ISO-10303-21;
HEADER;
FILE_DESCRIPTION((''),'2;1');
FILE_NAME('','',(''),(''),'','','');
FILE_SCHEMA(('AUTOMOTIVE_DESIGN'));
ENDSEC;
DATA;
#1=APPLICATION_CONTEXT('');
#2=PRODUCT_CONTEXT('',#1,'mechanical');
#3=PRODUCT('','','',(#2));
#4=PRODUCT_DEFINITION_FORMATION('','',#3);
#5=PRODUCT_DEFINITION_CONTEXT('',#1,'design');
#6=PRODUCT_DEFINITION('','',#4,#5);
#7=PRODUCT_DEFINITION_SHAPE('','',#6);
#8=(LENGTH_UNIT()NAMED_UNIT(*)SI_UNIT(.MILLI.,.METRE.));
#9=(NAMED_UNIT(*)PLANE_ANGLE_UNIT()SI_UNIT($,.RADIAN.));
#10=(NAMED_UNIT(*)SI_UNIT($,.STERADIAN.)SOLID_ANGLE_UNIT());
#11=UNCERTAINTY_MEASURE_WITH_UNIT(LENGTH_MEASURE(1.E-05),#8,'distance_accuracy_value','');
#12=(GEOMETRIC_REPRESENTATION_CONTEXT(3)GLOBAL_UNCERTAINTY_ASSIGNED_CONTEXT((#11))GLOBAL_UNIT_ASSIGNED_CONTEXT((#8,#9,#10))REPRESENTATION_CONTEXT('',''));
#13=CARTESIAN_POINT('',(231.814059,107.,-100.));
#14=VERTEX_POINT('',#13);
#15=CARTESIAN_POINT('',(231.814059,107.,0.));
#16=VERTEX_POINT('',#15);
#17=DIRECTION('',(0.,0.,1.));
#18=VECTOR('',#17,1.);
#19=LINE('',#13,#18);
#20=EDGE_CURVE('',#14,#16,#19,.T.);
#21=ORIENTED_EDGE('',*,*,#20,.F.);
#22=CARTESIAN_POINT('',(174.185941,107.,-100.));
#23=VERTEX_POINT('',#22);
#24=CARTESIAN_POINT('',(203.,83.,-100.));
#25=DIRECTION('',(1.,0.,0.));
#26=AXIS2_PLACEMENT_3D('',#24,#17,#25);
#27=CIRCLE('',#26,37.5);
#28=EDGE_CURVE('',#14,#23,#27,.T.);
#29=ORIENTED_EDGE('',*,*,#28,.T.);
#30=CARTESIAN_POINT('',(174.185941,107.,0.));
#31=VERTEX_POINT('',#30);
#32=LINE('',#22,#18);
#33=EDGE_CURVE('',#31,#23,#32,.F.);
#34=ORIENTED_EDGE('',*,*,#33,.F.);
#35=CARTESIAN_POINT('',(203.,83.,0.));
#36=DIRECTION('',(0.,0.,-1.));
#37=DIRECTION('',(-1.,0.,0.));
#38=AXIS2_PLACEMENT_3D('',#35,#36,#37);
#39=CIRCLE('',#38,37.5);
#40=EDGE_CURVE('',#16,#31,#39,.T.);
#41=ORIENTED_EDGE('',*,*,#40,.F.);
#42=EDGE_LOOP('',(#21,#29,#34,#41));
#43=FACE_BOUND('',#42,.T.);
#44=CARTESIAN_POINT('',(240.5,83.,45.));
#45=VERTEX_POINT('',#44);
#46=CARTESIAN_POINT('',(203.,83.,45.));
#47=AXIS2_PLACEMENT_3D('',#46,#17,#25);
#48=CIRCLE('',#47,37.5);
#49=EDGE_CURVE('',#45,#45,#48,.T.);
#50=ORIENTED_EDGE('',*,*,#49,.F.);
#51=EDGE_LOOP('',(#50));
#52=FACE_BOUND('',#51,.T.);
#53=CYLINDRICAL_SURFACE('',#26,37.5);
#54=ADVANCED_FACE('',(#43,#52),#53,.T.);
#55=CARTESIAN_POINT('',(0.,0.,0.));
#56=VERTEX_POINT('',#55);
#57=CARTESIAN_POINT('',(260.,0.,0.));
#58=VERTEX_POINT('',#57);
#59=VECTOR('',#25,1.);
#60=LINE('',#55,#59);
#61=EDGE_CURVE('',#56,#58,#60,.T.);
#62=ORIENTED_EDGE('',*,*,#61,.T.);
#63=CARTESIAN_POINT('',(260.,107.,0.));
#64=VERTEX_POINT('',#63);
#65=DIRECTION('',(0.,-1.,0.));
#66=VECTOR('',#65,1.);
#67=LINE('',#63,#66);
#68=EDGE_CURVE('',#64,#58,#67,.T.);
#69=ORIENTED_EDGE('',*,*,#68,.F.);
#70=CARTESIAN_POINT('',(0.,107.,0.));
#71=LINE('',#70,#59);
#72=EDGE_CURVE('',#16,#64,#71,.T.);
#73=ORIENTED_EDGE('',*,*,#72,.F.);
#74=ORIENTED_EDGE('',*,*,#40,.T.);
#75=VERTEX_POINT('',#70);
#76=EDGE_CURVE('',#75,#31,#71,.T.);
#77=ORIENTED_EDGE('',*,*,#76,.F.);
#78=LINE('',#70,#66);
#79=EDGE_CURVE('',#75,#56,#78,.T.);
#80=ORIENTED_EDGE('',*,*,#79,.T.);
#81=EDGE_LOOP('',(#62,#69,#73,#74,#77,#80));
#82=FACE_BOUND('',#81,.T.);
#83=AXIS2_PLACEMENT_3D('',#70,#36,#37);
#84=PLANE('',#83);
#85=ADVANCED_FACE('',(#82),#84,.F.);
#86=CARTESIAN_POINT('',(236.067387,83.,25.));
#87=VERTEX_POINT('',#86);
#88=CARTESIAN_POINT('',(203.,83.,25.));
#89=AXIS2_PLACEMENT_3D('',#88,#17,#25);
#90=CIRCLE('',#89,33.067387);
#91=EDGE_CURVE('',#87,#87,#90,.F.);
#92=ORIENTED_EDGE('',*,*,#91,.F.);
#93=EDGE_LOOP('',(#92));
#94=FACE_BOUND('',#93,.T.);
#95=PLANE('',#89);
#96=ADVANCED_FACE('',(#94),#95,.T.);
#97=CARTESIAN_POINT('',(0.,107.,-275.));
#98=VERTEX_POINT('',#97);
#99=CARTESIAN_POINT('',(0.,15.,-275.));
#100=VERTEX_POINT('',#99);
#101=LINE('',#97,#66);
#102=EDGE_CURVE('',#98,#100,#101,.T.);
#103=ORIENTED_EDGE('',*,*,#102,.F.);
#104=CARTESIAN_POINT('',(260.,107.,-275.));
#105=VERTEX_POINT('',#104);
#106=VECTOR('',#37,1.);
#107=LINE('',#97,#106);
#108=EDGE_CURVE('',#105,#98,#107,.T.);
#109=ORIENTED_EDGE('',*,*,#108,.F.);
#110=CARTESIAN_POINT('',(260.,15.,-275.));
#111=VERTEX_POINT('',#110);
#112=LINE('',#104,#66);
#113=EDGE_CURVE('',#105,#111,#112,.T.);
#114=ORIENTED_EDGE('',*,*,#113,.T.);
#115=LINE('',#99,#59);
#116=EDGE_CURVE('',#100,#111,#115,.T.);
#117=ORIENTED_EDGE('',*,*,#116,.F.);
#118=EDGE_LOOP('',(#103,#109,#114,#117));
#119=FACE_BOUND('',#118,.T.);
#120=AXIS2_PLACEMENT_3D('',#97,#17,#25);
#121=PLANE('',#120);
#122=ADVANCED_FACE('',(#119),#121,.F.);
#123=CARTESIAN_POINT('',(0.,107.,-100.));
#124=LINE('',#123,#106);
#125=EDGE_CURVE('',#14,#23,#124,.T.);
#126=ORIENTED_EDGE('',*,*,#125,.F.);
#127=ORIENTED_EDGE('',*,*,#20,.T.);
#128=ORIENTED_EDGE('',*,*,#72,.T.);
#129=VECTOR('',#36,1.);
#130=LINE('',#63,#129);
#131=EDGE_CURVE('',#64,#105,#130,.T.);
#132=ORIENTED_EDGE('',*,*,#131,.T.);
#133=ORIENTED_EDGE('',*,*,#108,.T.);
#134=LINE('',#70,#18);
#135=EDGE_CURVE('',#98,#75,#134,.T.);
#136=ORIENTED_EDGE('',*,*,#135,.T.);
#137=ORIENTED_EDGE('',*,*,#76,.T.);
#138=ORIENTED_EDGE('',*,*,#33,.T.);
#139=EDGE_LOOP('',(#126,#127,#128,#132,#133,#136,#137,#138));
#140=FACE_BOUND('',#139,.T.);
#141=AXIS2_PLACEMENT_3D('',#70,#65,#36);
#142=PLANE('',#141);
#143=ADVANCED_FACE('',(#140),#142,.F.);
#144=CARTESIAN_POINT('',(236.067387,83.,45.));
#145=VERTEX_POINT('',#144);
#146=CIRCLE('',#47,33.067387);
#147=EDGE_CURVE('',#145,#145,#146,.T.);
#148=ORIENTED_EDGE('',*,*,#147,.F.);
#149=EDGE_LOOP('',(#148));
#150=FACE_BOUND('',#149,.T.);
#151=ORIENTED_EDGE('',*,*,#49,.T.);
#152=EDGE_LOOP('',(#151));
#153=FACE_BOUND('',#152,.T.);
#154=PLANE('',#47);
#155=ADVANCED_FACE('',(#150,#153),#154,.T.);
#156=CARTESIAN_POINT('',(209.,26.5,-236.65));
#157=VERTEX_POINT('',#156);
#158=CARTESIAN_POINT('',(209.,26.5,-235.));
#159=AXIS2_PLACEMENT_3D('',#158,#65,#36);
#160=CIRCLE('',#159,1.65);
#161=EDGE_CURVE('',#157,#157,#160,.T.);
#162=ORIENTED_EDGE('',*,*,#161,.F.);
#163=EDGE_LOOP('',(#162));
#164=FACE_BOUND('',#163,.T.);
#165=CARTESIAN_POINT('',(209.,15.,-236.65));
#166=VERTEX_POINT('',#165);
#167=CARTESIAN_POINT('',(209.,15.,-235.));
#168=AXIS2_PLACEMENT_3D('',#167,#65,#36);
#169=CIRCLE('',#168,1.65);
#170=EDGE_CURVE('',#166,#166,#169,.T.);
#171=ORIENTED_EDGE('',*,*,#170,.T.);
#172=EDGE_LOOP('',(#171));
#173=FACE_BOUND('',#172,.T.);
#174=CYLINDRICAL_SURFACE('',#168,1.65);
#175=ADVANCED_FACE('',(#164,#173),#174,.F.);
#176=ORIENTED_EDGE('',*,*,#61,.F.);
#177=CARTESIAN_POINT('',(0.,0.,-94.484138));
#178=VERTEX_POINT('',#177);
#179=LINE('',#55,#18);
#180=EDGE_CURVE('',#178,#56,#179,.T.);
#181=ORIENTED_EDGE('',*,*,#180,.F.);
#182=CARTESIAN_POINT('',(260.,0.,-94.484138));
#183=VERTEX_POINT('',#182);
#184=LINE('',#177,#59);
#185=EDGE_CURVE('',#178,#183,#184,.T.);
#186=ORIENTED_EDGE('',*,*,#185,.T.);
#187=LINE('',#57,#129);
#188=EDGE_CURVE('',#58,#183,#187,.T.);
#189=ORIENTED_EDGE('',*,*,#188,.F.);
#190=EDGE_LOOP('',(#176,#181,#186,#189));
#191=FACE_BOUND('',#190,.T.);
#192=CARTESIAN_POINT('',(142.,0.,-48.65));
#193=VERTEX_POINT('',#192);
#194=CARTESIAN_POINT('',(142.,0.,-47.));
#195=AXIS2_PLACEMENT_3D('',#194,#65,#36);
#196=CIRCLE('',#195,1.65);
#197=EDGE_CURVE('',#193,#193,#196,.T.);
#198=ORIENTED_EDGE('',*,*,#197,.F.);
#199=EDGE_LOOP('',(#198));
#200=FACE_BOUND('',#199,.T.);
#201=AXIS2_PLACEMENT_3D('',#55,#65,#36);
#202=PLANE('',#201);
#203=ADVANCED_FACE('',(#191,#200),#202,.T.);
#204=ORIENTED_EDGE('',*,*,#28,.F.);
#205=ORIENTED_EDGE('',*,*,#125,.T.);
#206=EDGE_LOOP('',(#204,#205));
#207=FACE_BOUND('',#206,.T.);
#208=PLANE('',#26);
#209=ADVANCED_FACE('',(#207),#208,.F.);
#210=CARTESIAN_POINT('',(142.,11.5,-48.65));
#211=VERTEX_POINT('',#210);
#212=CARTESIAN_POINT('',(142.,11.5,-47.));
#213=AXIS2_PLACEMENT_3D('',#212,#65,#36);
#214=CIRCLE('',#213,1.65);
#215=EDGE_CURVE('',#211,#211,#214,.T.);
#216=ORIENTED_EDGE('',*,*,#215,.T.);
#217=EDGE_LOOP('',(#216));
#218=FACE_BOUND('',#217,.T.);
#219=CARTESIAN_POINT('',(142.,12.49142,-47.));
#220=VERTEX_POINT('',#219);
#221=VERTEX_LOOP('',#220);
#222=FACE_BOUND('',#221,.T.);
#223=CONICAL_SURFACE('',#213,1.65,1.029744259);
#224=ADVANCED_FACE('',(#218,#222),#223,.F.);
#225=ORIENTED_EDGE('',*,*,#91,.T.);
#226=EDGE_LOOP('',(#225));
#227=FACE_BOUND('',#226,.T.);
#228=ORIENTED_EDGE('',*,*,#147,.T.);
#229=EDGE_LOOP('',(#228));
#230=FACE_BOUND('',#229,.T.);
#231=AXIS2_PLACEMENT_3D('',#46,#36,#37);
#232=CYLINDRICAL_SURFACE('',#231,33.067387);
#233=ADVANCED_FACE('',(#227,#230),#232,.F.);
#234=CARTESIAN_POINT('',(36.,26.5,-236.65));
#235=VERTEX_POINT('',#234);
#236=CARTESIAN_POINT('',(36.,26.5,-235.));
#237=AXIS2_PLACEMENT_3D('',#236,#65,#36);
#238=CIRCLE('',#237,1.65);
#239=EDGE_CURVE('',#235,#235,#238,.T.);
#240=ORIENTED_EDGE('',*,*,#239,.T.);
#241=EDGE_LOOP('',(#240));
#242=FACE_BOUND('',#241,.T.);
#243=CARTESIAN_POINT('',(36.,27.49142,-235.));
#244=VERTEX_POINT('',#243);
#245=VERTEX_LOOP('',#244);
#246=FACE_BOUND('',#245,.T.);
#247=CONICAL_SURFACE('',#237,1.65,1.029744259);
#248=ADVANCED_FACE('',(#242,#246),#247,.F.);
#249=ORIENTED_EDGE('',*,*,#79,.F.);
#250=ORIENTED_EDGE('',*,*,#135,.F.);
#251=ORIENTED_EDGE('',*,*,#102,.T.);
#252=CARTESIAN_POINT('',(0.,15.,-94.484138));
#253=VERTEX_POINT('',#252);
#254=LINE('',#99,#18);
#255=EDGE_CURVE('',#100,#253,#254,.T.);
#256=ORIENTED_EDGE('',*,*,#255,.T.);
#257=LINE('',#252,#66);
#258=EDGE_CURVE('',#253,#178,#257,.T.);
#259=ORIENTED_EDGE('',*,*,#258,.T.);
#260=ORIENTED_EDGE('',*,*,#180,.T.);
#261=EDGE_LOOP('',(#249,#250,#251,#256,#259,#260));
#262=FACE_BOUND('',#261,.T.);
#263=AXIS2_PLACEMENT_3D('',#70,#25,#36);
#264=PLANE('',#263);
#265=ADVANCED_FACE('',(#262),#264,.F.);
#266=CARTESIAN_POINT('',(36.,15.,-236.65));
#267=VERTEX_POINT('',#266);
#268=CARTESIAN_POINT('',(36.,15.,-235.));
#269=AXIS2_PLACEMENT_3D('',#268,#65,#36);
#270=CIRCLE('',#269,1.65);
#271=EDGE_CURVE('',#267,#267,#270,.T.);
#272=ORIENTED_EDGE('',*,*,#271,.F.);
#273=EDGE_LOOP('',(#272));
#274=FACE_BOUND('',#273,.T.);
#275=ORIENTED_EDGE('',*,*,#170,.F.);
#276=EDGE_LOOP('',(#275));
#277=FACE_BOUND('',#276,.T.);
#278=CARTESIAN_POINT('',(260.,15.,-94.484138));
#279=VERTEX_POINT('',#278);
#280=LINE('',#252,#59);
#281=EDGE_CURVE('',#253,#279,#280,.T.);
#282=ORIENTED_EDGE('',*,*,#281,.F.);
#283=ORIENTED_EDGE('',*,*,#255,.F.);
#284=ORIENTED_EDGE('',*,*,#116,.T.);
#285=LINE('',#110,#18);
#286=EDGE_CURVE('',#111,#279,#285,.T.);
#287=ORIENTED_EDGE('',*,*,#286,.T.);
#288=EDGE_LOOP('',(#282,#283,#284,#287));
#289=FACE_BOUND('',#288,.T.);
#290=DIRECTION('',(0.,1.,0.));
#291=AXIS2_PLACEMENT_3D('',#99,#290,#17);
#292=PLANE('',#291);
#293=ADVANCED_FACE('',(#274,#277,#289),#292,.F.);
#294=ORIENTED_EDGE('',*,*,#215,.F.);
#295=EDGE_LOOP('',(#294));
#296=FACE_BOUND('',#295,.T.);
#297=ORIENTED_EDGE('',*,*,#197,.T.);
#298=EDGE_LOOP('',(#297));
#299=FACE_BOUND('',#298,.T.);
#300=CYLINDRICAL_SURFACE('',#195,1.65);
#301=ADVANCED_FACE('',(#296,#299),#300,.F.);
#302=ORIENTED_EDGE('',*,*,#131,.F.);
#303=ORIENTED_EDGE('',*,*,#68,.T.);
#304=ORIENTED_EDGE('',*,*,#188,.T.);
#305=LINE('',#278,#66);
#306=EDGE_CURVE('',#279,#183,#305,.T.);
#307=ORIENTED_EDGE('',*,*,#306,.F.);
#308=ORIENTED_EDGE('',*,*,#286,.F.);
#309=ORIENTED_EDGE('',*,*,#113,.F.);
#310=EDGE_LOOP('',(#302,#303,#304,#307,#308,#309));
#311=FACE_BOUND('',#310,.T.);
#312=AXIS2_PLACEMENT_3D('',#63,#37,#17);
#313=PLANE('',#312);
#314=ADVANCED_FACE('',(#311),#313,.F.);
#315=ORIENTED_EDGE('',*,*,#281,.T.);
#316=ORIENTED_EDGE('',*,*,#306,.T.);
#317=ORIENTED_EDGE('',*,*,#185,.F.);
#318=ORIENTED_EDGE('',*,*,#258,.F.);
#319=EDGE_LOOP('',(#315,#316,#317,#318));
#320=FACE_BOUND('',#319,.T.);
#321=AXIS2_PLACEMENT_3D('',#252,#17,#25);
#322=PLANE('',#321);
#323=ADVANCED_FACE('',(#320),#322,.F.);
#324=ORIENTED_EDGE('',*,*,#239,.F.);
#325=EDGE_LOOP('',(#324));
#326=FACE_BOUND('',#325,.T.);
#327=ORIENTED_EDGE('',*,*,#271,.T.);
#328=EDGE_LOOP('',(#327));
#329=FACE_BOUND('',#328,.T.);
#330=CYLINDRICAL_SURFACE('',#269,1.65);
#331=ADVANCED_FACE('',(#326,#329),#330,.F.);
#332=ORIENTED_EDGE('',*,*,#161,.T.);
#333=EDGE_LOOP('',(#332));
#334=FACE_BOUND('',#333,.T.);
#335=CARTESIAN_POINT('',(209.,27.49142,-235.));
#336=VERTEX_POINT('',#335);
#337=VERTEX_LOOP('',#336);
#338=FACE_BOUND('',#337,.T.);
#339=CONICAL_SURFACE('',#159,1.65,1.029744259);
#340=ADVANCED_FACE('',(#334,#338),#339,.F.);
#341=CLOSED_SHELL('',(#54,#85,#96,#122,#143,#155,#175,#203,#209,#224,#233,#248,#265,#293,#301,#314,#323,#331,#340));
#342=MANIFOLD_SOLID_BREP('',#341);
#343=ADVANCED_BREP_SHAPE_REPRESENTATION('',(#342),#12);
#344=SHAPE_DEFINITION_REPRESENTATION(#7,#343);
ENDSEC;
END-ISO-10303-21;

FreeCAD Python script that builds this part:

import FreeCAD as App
import Part
import Sketcher
Q = App.Units.Quantity


def add_polygon(sketch, points):
    """Adds a closed chain of lines whose ends are joined by coincident constraints."""
    first, n = sketch.GeometryCount, len(points)
    for a, b in zip(points, points[1:] + points[:1]):
        sketch.addGeometry(Part.LineSegment(App.Vector(*a, 0), App.Vector(*b, 0)), False)
    for i in range(n):
        sketch.addConstraint(Sketcher.Constraint("Coincident", first + i, 2, first + (i + 1) % n, 1))

doc = App.newDocument("Part")
body = doc.addObject("PartDesign::Body", "Body")

# Sketch on XZ plane
sketch1 = body.newObject("Sketcher::SketchObject", "Sketch")
sketch1.AttachmentSupport = (doc.getObject("XZ_Plane"), [""])
sketch1.MapMode = "FlatFace"
add_polygon(sketch1, [(0, -275), (0, 0), (260, 0), (260, -275)])  # lines 0-3
sketch1.addConstraint([
    Sketcher.Constraint("Vertical", 0),
    Sketcher.Constraint("Horizontal", 1),
    Sketcher.Constraint("Vertical", 2),
    Sketcher.Constraint("Horizontal", 3),
    Sketcher.Constraint("Coincident", 0, 2, -1, 1),
    Sketcher.Constraint("DistanceX", 1, 1, 1, 2, Q("260 mm")),
    Sketcher.Constraint("DistanceY", 0, 1, 0, 2, Q("275 mm")),
])
pad1 = body.newObject("PartDesign::Pad", "Pad")
pad1.Profile = sketch1
pad1.Length = 107
pad1.Reversed = True

# Sketch on XY plane
sketch2 = body.newObject("Sketcher::SketchObject", "Sketch001")
sketch2.AttachmentSupport = (doc.getObject("XY_Plane"), [""])
sketch2.MapMode = "FlatFace"
sketch2.addGeometry(Part.Circle(App.Vector(203, 83, 0), App.Vector(0, 0, 1), 38), False)
sketch2.addConstraint([
    Sketcher.Constraint("Diameter", 0, Q("75 mm")),
    Sketcher.Constraint("DistanceX", -1, 1, 0, 3, Q("203 mm")),
    Sketcher.Constraint("DistanceY", -1, 1, 0, 3, Q("83 mm")),
])
pad2 = body.newObject("PartDesign::Pad", "Pad001")
pad2.Profile = sketch2
pad2.Type = "TwoLengths"
pad2.Length = 25
pad2.Length2 = 100

# Sketch on YZ plane
sketch3 = body.newObject("Sketcher::SketchObject", "Sketch002")
sketch3.AttachmentSupport = (doc.getObject("YZ_Plane"), [""])
sketch3.MapMode = "FlatFace"
sketch3.AttachmentOffset = App.Placement(App.Vector(0, 0, 260), App.Rotation())
add_polygon(sketch3, [(15, -94), (0, -94), (0, -275), (15, -275)])  # lines 0-3
sketch3.addConstraint([
    Sketcher.Constraint("Horizontal", 0),
    Sketcher.Constraint("Vertical", 1),
    Sketcher.Constraint("Horizontal", 2),
    Sketcher.Constraint("Vertical", 3),
    Sketcher.Constraint("PointOnObject", 0, 2, -2),
    Sketcher.Constraint("DistanceX", 0, 2, 0, 1, Q("15 mm")),
    Sketcher.Constraint("DistanceY", 1, 2, -1, 1, Q("275 mm")),
    Sketcher.Constraint("DistanceY", 1, 2, 1, 1, Q("180.515862 mm")),
])
pocket1 = body.newObject("PartDesign::Pocket", "Pocket")
pocket1.Profile = sketch3
pocket1.Type = "ThroughAll"

# Sketch on XZ plane
sketch4 = body.newObject("Sketcher::SketchObject", "Sketch003")
sketch4.AttachmentSupport = (doc.getObject("XZ_Plane"), [""])
sketch4.MapMode = "FlatFace"
sketch4.AttachmentOffset = App.Placement(App.Vector(0, 0, -15), App.Rotation())
sketch4.addGeometry([
    Part.Circle(App.Vector(36, -235, 0), App.Vector(0, 0, 1), 1.6),
    Part.Circle(App.Vector(209, -235, 0), App.Vector(0, 0, 1), 1.6),
], False)
sketch4.addConstraint([
    Sketcher.Constraint("Equal", 0, 1),
    Sketcher.Constraint("Horizontal", 0, 3, 1, 3),
    Sketcher.Constraint("Diameter", 0, Q("3.3 mm")),
    Sketcher.Constraint("DistanceX", -1, 1, 0, 3, Q("36 mm")),
    Sketcher.Constraint("DistanceY", 0, 3, -1, 1, Q("235 mm")),
    Sketcher.Constraint("DistanceX", -1, 1, 1, 3, Q("209 mm")),
])
doc.recompute()
hole = body.newObject("PartDesign::Hole", "Hole")
hole.Profile = sketch4
hole.ThreadType = "None"
hole.Diameter = 3.3
hole.DepthType = "Dimension"
hole.Depth = 11.5
hole.DrillPoint = "Angled"
hole.DrillPointAngle = 118

# Sketch on XZ plane
sketch5 = body.newObject("Sketcher::SketchObject", "Sketch004")
sketch5.AttachmentSupport = (doc.getObject("XZ_Plane"), [""])
sketch5.MapMode = "FlatFace"
sketch5.addGeometry(Part.Circle(App.Vector(142, -47, 0), App.Vector(0, 0, 1), 1.6), False)
sketch5.addConstraint([
    Sketcher.Constraint("Diameter", 0, Q("3.3 mm")),
    Sketcher.Constraint("DistanceX", -1, 1, 0, 3, Q("142 mm")),
    Sketcher.Constraint("DistanceY", 0, 3, -1, 1, Q("47 mm")),
])
doc.recompute()
hole2 = body.newObject("PartDesign::Hole", "Hole001")
hole2.Profile = sketch5
hole2.ThreadType = "None"
hole2.Diameter = 3.3
hole2.DepthType = "Dimension"
hole2.Depth = 11.5
hole2.DrillPoint = "Angled"
hole2.DrillPointAngle = 118

# Sketch on XY plane
sketch6 = body.newObject("Sketcher::SketchObject", "Sketch005")
sketch6.AttachmentSupport = (doc.getObject("XY_Plane"), [""])
sketch6.MapMode = "FlatFace"
sketch6.AttachmentOffset = App.Placement(App.Vector(0, 0, 25), App.Rotation())
sketch6.addGeometry([
    Part.Circle(App.Vector(203, 83, 0), App.Vector(0, 0, 1), 38),
    Part.Circle(App.Vector(203, 83, 0), App.Vector(0, 0, 1), 33),
], False)
sketch6.addConstraint([
    Sketcher.Constraint("Coincident", 1, 3, 0, 3),
    Sketcher.Constraint("Diameter", 0, Q("75 mm")),
    Sketcher.Constraint("DistanceX", -1, 1, 0, 3, Q("203 mm")),
    Sketcher.Constraint("DistanceY", -1, 1, 0, 3, Q("83 mm")),
    Sketcher.Constraint("Diameter", 1, Q("66.134774 mm")),
])
pad3 = body.newObject("PartDesign::Pad", "Pad002")
pad3.Profile = sketch6
pad3.Length = 20

doc.recompute()
